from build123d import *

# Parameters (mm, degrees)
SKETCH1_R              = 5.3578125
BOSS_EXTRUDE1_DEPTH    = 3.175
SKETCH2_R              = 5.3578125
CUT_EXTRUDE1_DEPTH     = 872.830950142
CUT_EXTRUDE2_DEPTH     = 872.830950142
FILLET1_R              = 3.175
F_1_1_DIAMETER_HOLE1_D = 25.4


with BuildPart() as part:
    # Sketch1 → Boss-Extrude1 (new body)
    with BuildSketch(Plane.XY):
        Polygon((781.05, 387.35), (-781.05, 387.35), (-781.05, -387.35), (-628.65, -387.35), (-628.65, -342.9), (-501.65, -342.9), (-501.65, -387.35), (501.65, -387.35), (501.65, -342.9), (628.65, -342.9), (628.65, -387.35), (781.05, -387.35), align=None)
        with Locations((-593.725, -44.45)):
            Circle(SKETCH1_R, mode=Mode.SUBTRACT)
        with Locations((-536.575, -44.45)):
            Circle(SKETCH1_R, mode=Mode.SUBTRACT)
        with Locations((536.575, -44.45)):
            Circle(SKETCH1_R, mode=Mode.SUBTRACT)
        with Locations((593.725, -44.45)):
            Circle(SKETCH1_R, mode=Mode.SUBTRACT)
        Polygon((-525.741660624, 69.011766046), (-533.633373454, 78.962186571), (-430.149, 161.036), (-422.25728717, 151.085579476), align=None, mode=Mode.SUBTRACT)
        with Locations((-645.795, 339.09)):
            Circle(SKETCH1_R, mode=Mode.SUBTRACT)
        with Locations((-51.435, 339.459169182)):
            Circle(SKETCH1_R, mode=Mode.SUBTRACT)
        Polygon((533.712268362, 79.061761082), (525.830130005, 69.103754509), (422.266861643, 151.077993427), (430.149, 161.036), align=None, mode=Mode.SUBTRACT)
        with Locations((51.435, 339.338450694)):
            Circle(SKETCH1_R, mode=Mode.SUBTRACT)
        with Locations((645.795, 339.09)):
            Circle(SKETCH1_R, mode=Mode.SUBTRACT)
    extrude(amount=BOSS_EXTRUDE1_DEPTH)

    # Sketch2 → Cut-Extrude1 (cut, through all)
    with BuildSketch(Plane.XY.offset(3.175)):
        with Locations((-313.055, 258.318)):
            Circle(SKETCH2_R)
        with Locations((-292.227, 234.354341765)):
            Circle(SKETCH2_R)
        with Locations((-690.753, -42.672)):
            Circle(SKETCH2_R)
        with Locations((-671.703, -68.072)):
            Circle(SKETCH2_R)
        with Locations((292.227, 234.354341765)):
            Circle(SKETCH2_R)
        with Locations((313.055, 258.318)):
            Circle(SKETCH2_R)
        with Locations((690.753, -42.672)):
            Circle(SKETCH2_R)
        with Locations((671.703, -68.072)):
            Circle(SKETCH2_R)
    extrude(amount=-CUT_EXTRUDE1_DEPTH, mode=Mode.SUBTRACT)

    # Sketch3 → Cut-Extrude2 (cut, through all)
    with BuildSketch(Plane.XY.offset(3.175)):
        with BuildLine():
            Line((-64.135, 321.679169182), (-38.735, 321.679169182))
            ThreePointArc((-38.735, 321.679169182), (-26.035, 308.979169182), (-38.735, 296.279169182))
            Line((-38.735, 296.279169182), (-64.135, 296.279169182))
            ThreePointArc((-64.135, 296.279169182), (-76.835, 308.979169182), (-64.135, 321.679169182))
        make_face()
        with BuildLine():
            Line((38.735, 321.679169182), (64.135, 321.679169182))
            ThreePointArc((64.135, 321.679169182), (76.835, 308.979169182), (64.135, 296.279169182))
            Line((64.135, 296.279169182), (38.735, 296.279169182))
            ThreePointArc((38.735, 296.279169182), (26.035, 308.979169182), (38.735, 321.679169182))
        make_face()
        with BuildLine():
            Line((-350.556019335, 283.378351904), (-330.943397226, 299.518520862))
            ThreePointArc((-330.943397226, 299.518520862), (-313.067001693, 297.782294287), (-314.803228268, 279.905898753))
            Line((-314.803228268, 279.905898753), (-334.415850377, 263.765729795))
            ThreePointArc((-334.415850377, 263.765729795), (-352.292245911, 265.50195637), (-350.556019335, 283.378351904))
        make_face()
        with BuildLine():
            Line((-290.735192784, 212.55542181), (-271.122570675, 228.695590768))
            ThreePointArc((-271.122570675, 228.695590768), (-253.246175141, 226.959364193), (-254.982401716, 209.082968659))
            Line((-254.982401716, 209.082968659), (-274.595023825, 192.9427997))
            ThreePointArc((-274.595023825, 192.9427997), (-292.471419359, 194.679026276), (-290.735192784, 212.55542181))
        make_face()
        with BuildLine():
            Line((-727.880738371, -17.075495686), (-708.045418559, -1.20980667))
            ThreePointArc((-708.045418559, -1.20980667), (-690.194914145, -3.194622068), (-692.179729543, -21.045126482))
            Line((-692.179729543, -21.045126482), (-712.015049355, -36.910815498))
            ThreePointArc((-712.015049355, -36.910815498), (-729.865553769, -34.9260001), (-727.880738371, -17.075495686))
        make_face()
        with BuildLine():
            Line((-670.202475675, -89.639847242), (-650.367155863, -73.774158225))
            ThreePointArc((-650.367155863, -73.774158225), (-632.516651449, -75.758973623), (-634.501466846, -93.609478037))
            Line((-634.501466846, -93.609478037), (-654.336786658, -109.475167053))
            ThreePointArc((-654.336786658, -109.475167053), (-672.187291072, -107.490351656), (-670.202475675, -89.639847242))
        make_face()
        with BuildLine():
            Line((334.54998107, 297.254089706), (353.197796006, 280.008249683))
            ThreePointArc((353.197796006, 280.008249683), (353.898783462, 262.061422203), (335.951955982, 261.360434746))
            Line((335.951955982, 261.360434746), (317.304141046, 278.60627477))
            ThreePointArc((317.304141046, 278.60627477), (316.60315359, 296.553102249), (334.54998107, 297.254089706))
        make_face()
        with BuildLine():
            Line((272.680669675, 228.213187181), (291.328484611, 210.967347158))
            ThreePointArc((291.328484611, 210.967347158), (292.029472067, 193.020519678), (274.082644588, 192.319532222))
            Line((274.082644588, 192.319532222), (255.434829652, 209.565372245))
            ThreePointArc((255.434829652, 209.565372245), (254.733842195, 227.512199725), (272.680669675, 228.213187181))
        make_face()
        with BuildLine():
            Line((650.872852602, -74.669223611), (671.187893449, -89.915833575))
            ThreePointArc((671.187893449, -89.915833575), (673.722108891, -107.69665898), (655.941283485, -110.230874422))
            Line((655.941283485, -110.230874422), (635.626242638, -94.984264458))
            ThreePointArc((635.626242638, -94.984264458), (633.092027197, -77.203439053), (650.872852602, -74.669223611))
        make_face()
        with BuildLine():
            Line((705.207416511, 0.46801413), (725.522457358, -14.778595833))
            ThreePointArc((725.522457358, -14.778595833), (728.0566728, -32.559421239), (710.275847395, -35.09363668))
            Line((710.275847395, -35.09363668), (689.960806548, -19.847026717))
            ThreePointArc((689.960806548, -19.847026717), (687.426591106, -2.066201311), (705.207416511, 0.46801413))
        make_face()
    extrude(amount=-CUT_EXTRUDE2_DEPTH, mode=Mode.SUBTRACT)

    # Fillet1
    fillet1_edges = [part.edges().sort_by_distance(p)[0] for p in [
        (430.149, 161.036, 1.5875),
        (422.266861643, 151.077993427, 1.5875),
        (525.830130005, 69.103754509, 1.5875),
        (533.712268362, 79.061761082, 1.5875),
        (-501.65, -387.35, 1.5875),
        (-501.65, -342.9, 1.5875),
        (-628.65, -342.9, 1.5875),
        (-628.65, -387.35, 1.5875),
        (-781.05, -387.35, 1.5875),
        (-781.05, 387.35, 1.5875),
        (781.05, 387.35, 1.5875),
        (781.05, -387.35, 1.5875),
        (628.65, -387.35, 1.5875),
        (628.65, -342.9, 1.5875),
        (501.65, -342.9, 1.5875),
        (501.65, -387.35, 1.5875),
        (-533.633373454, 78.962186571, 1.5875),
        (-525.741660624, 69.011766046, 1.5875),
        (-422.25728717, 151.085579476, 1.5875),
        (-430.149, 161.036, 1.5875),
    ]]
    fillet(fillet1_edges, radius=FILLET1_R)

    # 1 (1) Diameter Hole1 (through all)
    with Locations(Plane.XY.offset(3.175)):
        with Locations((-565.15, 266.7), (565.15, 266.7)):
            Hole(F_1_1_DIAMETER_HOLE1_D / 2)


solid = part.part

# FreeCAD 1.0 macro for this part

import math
import FreeCAD as App
import Part
import Sketcher

V = App.Vector
Q = App.Units.Quantity


def edges_at(feature, points):
    """Names of the edges that pass closest to the given points."""
    edges = feature.Shape.Edges
    near = lambda p: min(range(len(edges)), key=lambda i: edges[i].distToShape(Part.Vertex(*p))[0])
    return sorted({f"Edge{near(p) + 1}" for p in points})

doc = App.newDocument("Part")
body = doc.addObject("PartDesign::Body", "Body")

sketch1 = body.newObject("Sketcher::SketchObject", "Sketch")
sketch1.AttachmentSupport = (doc.getObject("XY_Plane"), [""])
sketch1.MapMode = "FlatFace"
sketch1.addGeometry(Part.LineSegment(V(781, 387, 0), V(-781, 387, 0)), False)
sketch1.addGeometry(Part.LineSegment(V(-781, 387, 0), V(-781, -387, 0)), False)
sketch1.addGeometry(Part.LineSegment(V(-781, -387, 0), V(-629, -387, 0)), False)
sketch1.addGeometry(Part.LineSegment(V(-629, -387, 0), V(-629, -343, 0)), False)
sketch1.addGeometry(Part.LineSegment(V(-629, -343, 0), V(-502, -343, 0)), False)
sketch1.addGeometry(Part.LineSegment(V(-502, -343, 0), V(-502, -387, 0)), False)
sketch1.addGeometry(Part.LineSegment(V(-502, -387, 0), V(502, -387, 0)), False)
sketch1.addGeometry(Part.LineSegment(V(502, -387, 0), V(502, -343, 0)), False)
sketch1.addGeometry(Part.LineSegment(V(502, -343, 0), V(629, -343, 0)), False)
sketch1.addGeometry(Part.LineSegment(V(629, -343, 0), V(629, -387, 0)), False)
sketch1.addGeometry(Part.LineSegment(V(629, -387, 0), V(781, -387, 0)), False)
sketch1.addGeometry(Part.LineSegment(V(781, -387, 0), V(781, 387, 0)), False)
sketch1.addGeometry(Part.Circle(V(-594, -44, 0), V(0, 0, 1), 5), False)
sketch1.addGeometry(Part.Circle(V(-537, -44, 0), V(0, 0, 1), 5), False)
sketch1.addGeometry(Part.LineSegment(V(-422, 151, 0), V(-526, 69, 0)), False)
sketch1.addGeometry(Part.LineSegment(V(-526, 69, 0), V(-534, 79, 0)), False)
sketch1.addGeometry(Part.LineSegment(V(-534, 79, 0), V(-430, 161, 0)), False)
sketch1.addGeometry(Part.LineSegment(V(-430, 161, 0), V(-422, 151, 0)), False)
sketch1.addGeometry(Part.Circle(V(537, -44, 0), V(0, 0, 1), 5), False)
sketch1.addGeometry(Part.Circle(V(594, -44, 0), V(0, 0, 1), 5), False)
sketch1.addGeometry(Part.LineSegment(V(430, 161, 0), V(534, 79, 0)), False)
sketch1.addGeometry(Part.LineSegment(V(534, 79, 0), V(526, 69, 0)), False)
sketch1.addGeometry(Part.LineSegment(V(526, 69, 0), V(422, 151, 0)), False)
sketch1.addGeometry(Part.LineSegment(V(422, 151, 0), V(430, 161, 0)), False)
sketch1.addGeometry(Part.Circle(V(-646, 339, 0), V(0, 0, 1), 5), False)
sketch1.addGeometry(Part.Circle(V(-51, 339, 0), V(0, 0, 1), 5), False)
sketch1.addGeometry(Part.Circle(V(51, 339, 0), V(0, 0, 1), 5), False)
sketch1.addGeometry(Part.Circle(V(646, 339, 0), V(0, 0, 1), 5), False)
sketch1.addConstraint(Sketcher.Constraint("Coincident", 0, 2, 1, 1))
sketch1.addConstraint(Sketcher.Constraint("Coincident", 1, 2, 2, 1))
sketch1.addConstraint(Sketcher.Constraint("Coincident", 2, 2, 3, 1))
sketch1.addConstraint(Sketcher.Constraint("Coincident", 3, 2, 4, 1))
sketch1.addConstraint(Sketcher.Constraint("Coincident", 4, 2, 5, 1))
sketch1.addConstraint(Sketcher.Constraint("Coincident", 5, 2, 6, 1))
sketch1.addConstraint(Sketcher.Constraint("Coincident", 6, 2, 7, 1))
sketch1.addConstraint(Sketcher.Constraint("Coincident", 7, 2, 8, 1))
sketch1.addConstraint(Sketcher.Constraint("Coincident", 8, 2, 9, 1))
sketch1.addConstraint(Sketcher.Constraint("Coincident", 9, 2, 10, 1))
sketch1.addConstraint(Sketcher.Constraint("Coincident", 10, 2, 11, 1))
sketch1.addConstraint(Sketcher.Constraint("Coincident", 11, 2, 0, 1))
sketch1.addConstraint(Sketcher.Constraint("Coincident", 14, 2, 15, 1))
sketch1.addConstraint(Sketcher.Constraint("Coincident", 15, 2, 16, 1))
sketch1.addConstraint(Sketcher.Constraint("Coincident", 16, 2, 17, 1))
sketch1.addConstraint(Sketcher.Constraint("Coincident", 17, 2, 14, 1))
sketch1.addConstraint(Sketcher.Constraint("Coincident", 20, 2, 21, 1))
sketch1.addConstraint(Sketcher.Constraint("Coincident", 21, 2, 22, 1))
sketch1.addConstraint(Sketcher.Constraint("Coincident", 22, 2, 23, 1))
sketch1.addConstraint(Sketcher.Constraint("Coincident", 23, 2, 20, 1))
sketch1.addConstraint(Sketcher.Constraint("Horizontal", 0))
sketch1.addConstraint(Sketcher.Constraint("Vertical", 1))
sketch1.addConstraint(Sketcher.Constraint("Horizontal", 2))
sketch1.addConstraint(Sketcher.Constraint("Vertical", 3))
sketch1.addConstraint(Sketcher.Constraint("Horizontal", 4))
sketch1.addConstraint(Sketcher.Constraint("Vertical", 5))
sketch1.addConstraint(Sketcher.Constraint("Horizontal", 6))
sketch1.addConstraint(Sketcher.Constraint("Vertical", 7))
sketch1.addConstraint(Sketcher.Constraint("Horizontal", 8))
sketch1.addConstraint(Sketcher.Constraint("Vertical", 9))
sketch1.addConstraint(Sketcher.Constraint("Horizontal", 10))
sketch1.addConstraint(Sketcher.Constraint("Vertical", 11))
sketch1.addConstraint(Sketcher.Constraint("Equal", 12, 13))
sketch1.addConstraint(Sketcher.Constraint("Equal", 13, 18))
sketch1.addConstraint(Sketcher.Constraint("Equal", 18, 19))
sketch1.addConstraint(Sketcher.Constraint("Equal", 19, 24))
sketch1.addConstraint(Sketcher.Constraint("Equal", 24, 25))
sketch1.addConstraint(Sketcher.Constraint("Equal", 25, 26))
sketch1.addConstraint(Sketcher.Constraint("Equal", 26, 27))
sketch1.addConstraint(Sketcher.Constraint("Symmetric", 0, 2, 10, 2, -1, 1))
sketch1.addConstraint(Sketcher.Constraint("Symmetric", 13, 3, 18, 3, -2))
sketch1.addConstraint(Sketcher.Constraint("Symmetric", 12, 3, 19, 3, -2))
sketch1.addConstraint(Sketcher.Constraint("Symmetric", 24, 3, 27, 3, -2))
sketch1.addConstraint(Sketcher.Constraint("Symmetric", 4, 2, 7, 2, -2))
sketch1.addConstraint(Sketcher.Constraint("Symmetric", 2, 2, 9, 2, -2))
sketch1.addConstraint(Sketcher.Constraint("Symmetric", 16, 2, 23, 2, -2))
sketch1.addConstraint(Sketcher.Constraint("Perpendicular", 14, 15))
sketch1.addConstraint(Sketcher.Constraint("Perpendicular", 15, 16))
sketch1.addConstraint(Sketcher.Constraint("Perpendicular", 16, 17))
sketch1.addConstraint(Sketcher.Constraint("Perpendicular", 20, 21))
sketch1.addConstraint(Sketcher.Constraint("Perpendicular", 21, 22))
sketch1.addConstraint(Sketcher.Constraint("Perpendicular", 22, 23))
sketch1.addConstraint(Sketcher.Constraint("Horizontal", 12, 3, 13, 3))
sketch1.addConstraint(Sketcher.Constraint("Horizontal", 2, 2, 5, 2))
sketch1.addConstraint(Sketcher.Constraint("Equal", 16, 20))
sketch1.addConstraint(Sketcher.Constraint("Equal", 17, 21))
sketch1.addConstraint(Sketcher.Constraint("DistanceX", 2, 1, 2, 2, Q("6 in")))
sketch1.addConstraint(Sketcher.Constraint("DistanceX", 4, 1, 4, 2, Q("5 in")))
sketch1.addConstraint(Sketcher.Constraint("Diameter", 12, Q("0.421875 in")))
sketch1.addConstraint(Sketcher.Constraint("DistanceX", 0, 2, 0, 1, Q("61.5 in")))
sketch1.addConstraint(Sketcher.Constraint("DistanceY", 1, 2, 1, 1, Q("30.5 in")))
sketch1.addConstraint(Sketcher.Constraint("DistanceY", 12, 3, 0, 2, Q("17 in")))
sketch1.addConstraint(Sketcher.Constraint("Distance", 14, Q("5.2 in")))
sketch1.addConstraint(Sketcher.Constraint("Distance", 15, Q("0.5 in")))
sketch1.addConstraint(Sketcher.Constraint("DistanceY", 3, 1, 3, 2, Q("1.75 in")))
sketch1.addConstraint(Sketcher.Constraint("DistanceX", 12, 3, 18, 3, Q("44.5 in")))
sketch1.addConstraint(Sketcher.Constraint("DistanceY", 12, 3, 24, 3, Q("15.1 in")))
sketch1.addConstraint(Sketcher.Constraint("DistanceX", 24, 3, 13, 3, Q("4.3 in")))
sketch1.addConstraint(Sketcher.Constraint("DistanceX", 24, 3, 25, 3, Q("23.4 in")))
sketch1.addConstraint(Sketcher.Constraint("DistanceX", 26, 3, 18, 3, Q("19.1 in")))
sketch1.addConstraint(Sketcher.Constraint("DistanceY", -1, 1, 16, 2, Q("6.34 in")))
sketch1.addConstraint(Sketcher.Constraint("DistanceX", 12, 3, 13, 3, Q("2.25 in")))
sketch1.addConstraint(Sketcher.Constraint("DistanceX", 13, 3, 16, 2, Q("4.19 in")))
sketch1.addConstraint(Sketcher.Constraint("DistanceY", -1, 1, 25, 3, 339.459169))
sketch1.addConstraint(Sketcher.Constraint("DistanceY", -1, 1, 26, 3, 339.338451))
sketch1.addConstraint(Sketcher.Constraint("DistanceX", 14, 2, -1, 1, 525.741661))
sketch1.addConstraint(Sketcher.Constraint("DistanceX", -1, 1, 20, 2, 533.712268))
pad1 = body.newObject("PartDesign::Pad", "Pad")
pad1.Profile = sketch1
pad1.Length = Q("0.125 in")

sketch2 = body.newObject("Sketcher::SketchObject", "Sketch001")
sketch2.AttachmentSupport = (doc.getObject("XY_Plane"), [""])
sketch2.MapMode = "FlatFace"
sketch2.AttachmentOffset = App.Placement(V(0, 0, 0.125 * 25.4), App.Rotation())
sketch2.addGeometry(Part.Circle(V(-313, 258, 0), V(0, 0, 1), 5), False)
sketch2.addGeometry(Part.Circle(V(-292, 234, 0), V(0, 0, 1), 5), False)
sketch2.addGeometry(Part.Circle(V(-691, -43, 0), V(0, 0, 1), 5), False)
sketch2.addGeometry(Part.Circle(V(-672, -68, 0), V(0, 0, 1), 5), False)
sketch2.addGeometry(Part.Circle(V(292, 234, 0), V(0, 0, 1), 5), False)
sketch2.addGeometry(Part.Circle(V(313, 258, 0), V(0, 0, 1), 5), False)
sketch2.addGeometry(Part.Circle(V(691, -43, 0), V(0, 0, 1), 5), False)
sketch2.addGeometry(Part.Circle(V(672, -68, 0), V(0, 0, 1), 5), False)
sketch2.addConstraint(Sketcher.Constraint("Equal", 0, 1))
sketch2.addConstraint(Sketcher.Constraint("Equal", 1, 2))
sketch2.addConstraint(Sketcher.Constraint("Equal", 2, 3))
sketch2.addConstraint(Sketcher.Constraint("Equal", 3, 4))
sketch2.addConstraint(Sketcher.Constraint("Equal", 4, 5))
sketch2.addConstraint(Sketcher.Constraint("Equal", 5, 6))
sketch2.addConstraint(Sketcher.Constraint("Equal", 6, 7))
sketch2.addConstraint(Sketcher.Constraint("Symmetric", 1, 3, 4, 3, -2))
sketch2.addConstraint(Sketcher.Constraint("Symmetric", 0, 3, 5, 3, -2))
sketch2.addConstraint(Sketcher.Constraint("Symmetric", 2, 3, 6, 3, -2))
sketch2.addConstraint(Sketcher.Constraint("Symmetric", 3, 3, 7, 3, -2))
sketch2.addConstraint(Sketcher.Constraint("Diameter", 0, Q("0.421875 in")))
sketch2.addConstraint(Sketcher.Constraint("DistanceY", 3, 3, 2, 3, Q("1 in")))
sketch2.addConstraint(Sketcher.Constraint("DistanceX", 2, 3, 4, 3, Q("38.7 in")))
sketch2.addConstraint(Sketcher.Constraint("DistanceY", -1, 1, 0, 3, Q("10.17 in")))
sketch2.addConstraint(Sketcher.Constraint("DistanceY", 2, 3, -1, 1, Q("1.68 in")))
sketch2.addConstraint(Sketcher.Constraint("DistanceX", 0, 3, 1, 3, Q("0.82 in")))
sketch2.addConstraint(Sketcher.Constraint("DistanceX", 2, 3, 0, 3, Q("14.87 in")))
sketch2.addConstraint(Sketcher.Constraint("DistanceX", 2, 3, 3, 3, Q("0.75 in")))
sketch2.addConstraint(Sketcher.Constraint("DistanceY", -1, 1, 1, 3, 234.354342))
pocket1 = body.newObject("PartDesign::Pocket", "Pocket")
pocket1.Profile = sketch2
pocket1.Type = "ThroughAll"

sketch3 = body.newObject("Sketcher::SketchObject", "Sketch002")
sketch3.AttachmentSupport = (doc.getObject("XY_Plane"), [""])
sketch3.MapMode = "FlatFace"
sketch3.AttachmentOffset = App.Placement(V(0, 0, 0.125 * 25.4), App.Rotation())
sketch3.addGeometry(Part.LineSegment(V(-39, 322, 0), V(-64, 322, 0)), False)
sketch3.addGeometry(Part.ArcOfCircle(Part.Circle(V(-64, 309, 0), V(0, 0, 1), 13), math.radians(90), math.radians(270)), False)
sketch3.addGeometry(Part.LineSegment(V(-64, 296, 0), V(-39, 296, 0)), False)
sketch3.addGeometry(Part.ArcOfCircle(Part.Circle(V(-39, 309, 0), V(0, 0, 1), 13), math.radians(-90), math.radians(90)), False)
sketch3.addGeometry(Part.LineSegment(V(64, 322, 0), V(39, 322, 0)), False)
sketch3.addGeometry(Part.ArcOfCircle(Part.Circle(V(39, 309, 0), V(0, 0, 1), 13), math.radians(90), math.radians(270)), False)
sketch3.addGeometry(Part.LineSegment(V(39, 296, 0), V(64, 296, 0)), False)
sketch3.addGeometry(Part.ArcOfCircle(Part.Circle(V(64, 309, 0), V(0, 0, 1), 13), math.radians(-90), math.radians(90)), False)
sketch3.addGeometry(Part.LineSegment(V(-331, 300, 0), V(-351, 283, 0)), False)
sketch3.addGeometry(Part.ArcOfCircle(Part.Circle(V(-342, 274, 0), V(0, 0, 1), 13), math.radians(129), math.radians(309)), False)
sketch3.addGeometry(Part.LineSegment(V(-334, 264, 0), V(-315, 280, 0)), False)
sketch3.addGeometry(Part.ArcOfCircle(Part.Circle(V(-323, 290, 0), V(0, 0, 1), 13), math.radians(-51), math.radians(129)), False)
sketch3.addGeometry(Part.LineSegment(V(-271, 229, 0), V(-291, 213, 0)), False)
sketch3.addGeometry(Part.ArcOfCircle(Part.Circle(V(-283, 203, 0), V(0, 0, 1), 13), math.radians(129), math.radians(309)), False)
sketch3.addGeometry(Part.LineSegment(V(-275, 193, 0), V(-255, 209, 0)), False)
sketch3.addGeometry(Part.ArcOfCircle(Part.Circle(V(-263, 219, 0), V(0, 0, 1), 13), math.radians(-51), math.radians(129)), False)
sketch3.addGeometry(Part.LineSegment(V(-708, -1, 0), V(-728, -17, 0)), False)
sketch3.addGeometry(Part.ArcOfCircle(Part.Circle(V(-720, -27, 0), V(0, 0, 1), 13), math.radians(129), math.radians(309)), False)
sketch3.addGeometry(Part.LineSegment(V(-712, -37, 0), V(-692, -21, 0)), False)
sketch3.addGeometry(Part.ArcOfCircle(Part.Circle(V(-700, -11, 0), V(0, 0, 1), 13), math.radians(-51), math.radians(129)), False)
sketch3.addGeometry(Part.LineSegment(V(-650, -74, 0), V(-670, -90, 0)), False)
sketch3.addGeometry(Part.ArcOfCircle(Part.Circle(V(-662, -100, 0), V(0, 0, 1), 13), math.radians(129), math.radians(309)), False)
sketch3.addGeometry(Part.LineSegment(V(-654, -109, 0), V(-635, -94, 0)), False)
sketch3.addGeometry(Part.ArcOfCircle(Part.Circle(V(-642, -84, 0), V(0, 0, 1), 13), math.radians(-51), math.radians(129)), False)
sketch3.addGeometry(Part.LineSegment(V(353, 280, 0), V(335, 297, 0)), False)
sketch3.addGeometry(Part.ArcOfCircle(Part.Circle(V(326, 288, 0), V(0, 0, 1), 13), math.radians(47), math.radians(227)), False)
sketch3.addGeometry(Part.LineSegment(V(317, 279, 0), V(336, 261, 0)), False)
sketch3.addGeometry(Part.ArcOfCircle(Part.Circle(V(345, 271, 0), V(0, 0, 1), 13), math.radians(-133), math.radians(47)), False)
sketch3.addGeometry(Part.LineSegment(V(291, 211, 0), V(273, 228, 0)), False)
sketch3.addGeometry(Part.ArcOfCircle(Part.Circle(V(264, 219, 0), V(0, 0, 1), 13), math.radians(47), math.radians(227)), False)
sketch3.addGeometry(Part.LineSegment(V(255, 210, 0), V(274, 192, 0)), False)
sketch3.addGeometry(Part.ArcOfCircle(Part.Circle(V(283, 202, 0), V(0, 0, 1), 13), math.radians(-133), math.radians(47)), False)
sketch3.addGeometry(Part.LineSegment(V(671, -90, 0), V(651, -75, 0)), False)
sketch3.addGeometry(Part.ArcOfCircle(Part.Circle(V(643, -85, 0), V(0, 0, 1), 13), math.radians(53), math.radians(233)), False)
sketch3.addGeometry(Part.LineSegment(V(636, -95, 0), V(656, -110, 0)), False)
sketch3.addGeometry(Part.ArcOfCircle(Part.Circle(V(664, -100, 0), V(0, 0, 1), 13), math.radians(-127), math.radians(53)), False)
sketch3.addGeometry(Part.LineSegment(V(726, -15, 0), V(705, 0, 0)), False)
sketch3.addGeometry(Part.ArcOfCircle(Part.Circle(V(698, -10, 0), V(0, 0, 1), 13), math.radians(53), math.radians(233)), False)
sketch3.addGeometry(Part.LineSegment(V(690, -20, 0), V(710, -35, 0)), False)
sketch3.addGeometry(Part.ArcOfCircle(Part.Circle(V(718, -25, 0), V(0, 0, 1), 13), math.radians(-127), math.radians(53)), False)
sketch3.addConstraint(Sketcher.Constraint("Tangent", 0, 2, 1, 1))
sketch3.addConstraint(Sketcher.Constraint("Tangent", 1, 2, 2, 1))
sketch3.addConstraint(Sketcher.Constraint("Tangent", 2, 2, 3, 1))
sketch3.addConstraint(Sketcher.Constraint("Tangent", 3, 2, 0, 1))
sketch3.addConstraint(Sketcher.Constraint("Tangent", 4, 2, 5, 1))
sketch3.addConstraint(Sketcher.Constraint("Tangent", 5, 2, 6, 1))
sketch3.addConstraint(Sketcher.Constraint("Tangent", 6, 2, 7, 1))
sketch3.addConstraint(Sketcher.Constraint("Tangent", 7, 2, 4, 1))
sketch3.addConstraint(Sketcher.Constraint("Tangent", 8, 2, 9, 1))
sketch3.addConstraint(Sketcher.Constraint("Tangent", 9, 2, 10, 1))
sketch3.addConstraint(Sketcher.Constraint("Tangent", 10, 2, 11, 1))
sketch3.addConstraint(Sketcher.Constraint("Tangent", 11, 2, 8, 1))
sketch3.addConstraint(Sketcher.Constraint("Tangent", 12, 2, 13, 1))
sketch3.addConstraint(Sketcher.Constraint("Tangent", 13, 2, 14, 1))
sketch3.addConstraint(Sketcher.Constraint("Tangent", 14, 2, 15, 1))
sketch3.addConstraint(Sketcher.Constraint("Tangent", 15, 2, 12, 1))
sketch3.addConstraint(Sketcher.Constraint("Tangent", 16, 2, 17, 1))
sketch3.addConstraint(Sketcher.Constraint("Tangent", 17, 2, 18, 1))
sketch3.addConstraint(Sketcher.Constraint("Tangent", 18, 2, 19, 1))
sketch3.addConstraint(Sketcher.Constraint("Tangent", 19, 2, 16, 1))
sketch3.addConstraint(Sketcher.Constraint("Tangent", 20, 2, 21, 1))
sketch3.addConstraint(Sketcher.Constraint("Tangent", 21, 2, 22, 1))
sketch3.addConstraint(Sketcher.Constraint("Tangent", 22, 2, 23, 1))
sketch3.addConstraint(Sketcher.Constraint("Tangent", 23, 2, 20, 1))
sketch3.addConstraint(Sketcher.Constraint("Tangent", 24, 2, 25, 1))
sketch3.addConstraint(Sketcher.Constraint("Tangent", 25, 2, 26, 1))
sketch3.addConstraint(Sketcher.Constraint("Tangent", 26, 2, 27, 1))
sketch3.addConstraint(Sketcher.Constraint("Tangent", 27, 2, 24, 1))
sketch3.addConstraint(Sketcher.Constraint("Tangent", 28, 2, 29, 1))
sketch3.addConstraint(Sketcher.Constraint("Tangent", 29, 2, 30, 1))
sketch3.addConstraint(Sketcher.Constraint("Tangent", 30, 2, 31, 1))
sketch3.addConstraint(Sketcher.Constraint("Tangent", 31, 2, 28, 1))
sketch3.addConstraint(Sketcher.Constraint("Tangent", 32, 2, 33, 1))
sketch3.addConstraint(Sketcher.Constraint("Tangent", 33, 2, 34, 1))
sketch3.addConstraint(Sketcher.Constraint("Tangent", 34, 2, 35, 1))
sketch3.addConstraint(Sketcher.Constraint("Tangent", 35, 2, 32, 1))
sketch3.addConstraint(Sketcher.Constraint("Tangent", 36, 2, 37, 1))
sketch3.addConstraint(Sketcher.Constraint("Tangent", 37, 2, 38, 1))
sketch3.addConstraint(Sketcher.Constraint("Tangent", 38, 2, 39, 1))
sketch3.addConstraint(Sketcher.Constraint("Tangent", 39, 2, 36, 1))
sketch3.addConstraint(Sketcher.Constraint("Horizontal", 0))
sketch3.addConstraint(Sketcher.Constraint("Horizontal", 2))
sketch3.addConstraint(Sketcher.Constraint("Horizontal", 4))
sketch3.addConstraint(Sketcher.Constraint("Horizontal", 6))
sketch3.addConstraint(Sketcher.Constraint("Equal", 3, 5))
sketch3.addConstraint(Sketcher.Constraint("Equal", 7, 9))
sketch3.addConstraint(Sketcher.Constraint("Equal", 9, 11))
sketch3.addConstraint(Sketcher.Constraint("Equal", 11, 13))
sketch3.addConstraint(Sketcher.Constraint("Equal", 13, 15))
sketch3.addConstraint(Sketcher.Constraint("Equal", 15, 17))
sketch3.addConstraint(Sketcher.Constraint("Equal", 17, 19))
sketch3.addConstraint(Sketcher.Constraint("Equal", 19, 21))
sketch3.addConstraint(Sketcher.Constraint("Equal", 21, 23))
sketch3.addConstraint(Sketcher.Constraint("Equal", 23, 25))
sketch3.addConstraint(Sketcher.Constraint("Equal", 25, 27))
sketch3.addConstraint(Sketcher.Constraint("Equal", 27, 29))
sketch3.addConstraint(Sketcher.Constraint("Equal", 29, 31))
sketch3.addConstraint(Sketcher.Constraint("Equal", 31, 33))
sketch3.addConstraint(Sketcher.Constraint("Equal", 33, 35))
sketch3.addConstraint(Sketcher.Constraint("Equal", 35, 37))
sketch3.addConstraint(Sketcher.Constraint("Equal", 37, 39))
sketch3.addConstraint(Sketcher.Constraint("Symmetric", 3, 3, 5, 3, -2))
sketch3.addConstraint(Sketcher.Constraint("Parallel", 10, 12))
sketch3.addConstraint(Sketcher.Constraint("Parallel", 18, 20))
sketch3.addConstraint(Sketcher.Constraint("Parallel", 26, 28))
sketch3.addConstraint(Sketcher.Constraint("Parallel", 34, 36))
sketch3.addConstraint(Sketcher.Constraint("Horizontal", 15, 3, 29, 3))
sketch3.addConstraint(Sketcher.Constraint("Equal", 2, 4))
sketch3.addConstraint(Sketcher.Constraint("Equal", 10, 12))
sketch3.addConstraint(Sketcher.Constraint("Equal", 14, 16))
sketch3.addConstraint(Sketcher.Constraint("Equal", 18, 20))
sketch3.addConstraint(Sketcher.Constraint("Equal", 22, 24))
sketch3.addConstraint(Sketcher.Constraint("Equal", 26, 28))
sketch3.addConstraint(Sketcher.Constraint("Equal", 30, 32))
sketch3.addConstraint(Sketcher.Constraint("Equal", 34, 36))
sketch3.addConstraint(Sketcher.Constraint("Radius", 1, Q("0.5 in")))
sketch3.addConstraint(Sketcher.Constraint("DistanceX", 0, 2, 0, 1, Q("1 in")))
sketch3.addConstraint(Sketcher.Constraint("Distance", 8, Q("1 in")))
sketch3.addConstraint(Sketcher.Constraint("DistanceX", 3, 3, 5, 3, Q("3.05 in")))
sketch3.addConstraint(Sketcher.Constraint("DistanceX", 11, 3, 13, 3, Q("1.5830002 in")))
sketch3.addConstraint(Sketcher.Constraint("DistanceY", -1, 1, 10, 2, 279.905899))
sketch3.addConstraint(Sketcher.Constraint("DistanceY", -1, 1, 13, 2, 192.9428))
sketch3.addConstraint(Sketcher.Constraint("DistanceX", 14, 2, -1, 1, 254.982402))
sketch3.addConstraint(Sketcher.Constraint("DistanceX", 32, 2, 39, 3, 67.0263))
sketch3.addConstraint(Sketcher.Constraint("DistanceY", -1, 1, 1, 3, 308.979169))
sketch3.addConstraint(Sketcher.Constraint("DistanceY", -1, 1, 9, 3, 273.572041))
sketch3.addConstraint(Sketcher.Constraint("DistanceX", 21, 3, -1, 1, 662.269631))
sketch3.addConstraint(Sketcher.Constraint("DistanceX", 23, 3, -1, 1, 642.434311))
sketch3.addConstraint(Sketcher.Constraint("DistanceY", 23, 3, -1, 1, 83.691818))
sketch3.addConstraint(Sketcher.Constraint("DistanceX", -1, 1, 25, 3, 325.927061))
sketch3.addConstraint(Sketcher.Constraint("DistanceX", -1, 1, 29, 3, 264.05775))
sketch3.addConstraint(Sketcher.Constraint("DistanceY", -1, 1, 31, 3, 201.64344))
sketch3.addConstraint(Sketcher.Constraint("DistanceX", -1, 1, 35, 3, 663.564588))
sketch3.addConstraint(Sketcher.Constraint("DistanceX", -1, 1, 37, 3, 697.584112))
sketch3.addConstraint(Sketcher.Constraint("DistanceX", 16, 2, -1, 1, 727.880738))
sketch3.addConstraint(Sketcher.Constraint("DistanceY", -1, 1, 24, 2, 297.25409))
sketch3.addConstraint(Sketcher.Constraint("DistanceY", 21, 3, 17, 3, 72.564352))
sketch3.addConstraint(Sketcher.Constraint("DistanceY", 37, 3, 27, 3, 280.373849))
sketch3.addConstraint(Sketcher.Constraint("DistanceY", 32, 2, 31, 2, 285.636571))
pocket2 = body.newObject("PartDesign::Pocket", "Pocket001")
pocket2.Profile = sketch3
pocket2.Type = "ThroughAll"
doc.recompute()

fillet = body.newObject("PartDesign::Fillet", "Fillet")
fillet.Base = (pocket2, edges_at(pocket2, [
    (430.149, 161.036, 1.587),
    (422.267, 151.078, 1.587),
    (525.83, 69.104, 1.587),
    (533.712, 79.062, 1.587),
    (-501.65, -387.35, 1.587),
    (-501.65, -342.9, 1.587),
    (-628.65, -342.9, 1.587),
    (-628.65, -387.35, 1.587),
    (-781.05, -387.35, 1.587),
    (-781.05, 387.35, 1.587),
    (781.05, 387.35, 1.587),
    (781.05, -387.35, 1.587),
    (628.65, -387.35, 1.587),
    (628.65, -342.9, 1.587),
    (501.65, -342.9, 1.587),
    (501.65, -387.35, 1.587),
    (-533.633, 78.962, 1.587),
    (-525.742, 69.012, 1.587),
    (-422.257, 151.086, 1.587),
    (-430.149, 161.036, 1.587),
]))
fillet.Radius = Q("0.125 in")

sketch4 = body.newObject("Sketcher::SketchObject", "Sketch003")
sketch4.AttachmentSupport = (doc.getObject("XY_Plane"), [""])
sketch4.MapMode = "FlatFace"
sketch4.AttachmentOffset = App.Placement(V(0, 0, 0.125 * 25.4), App.Rotation())
sketch4.addGeometry(Part.Circle(V(-565, 267, 0), V(0, 0, 1), 13), False)
sketch4.addGeometry(Part.Circle(V(565, 267, 0), V(0, 0, 1), 13), False)
sketch4.addConstraint(Sketcher.Constraint("Equal", 0, 1))
sketch4.addConstraint(Sketcher.Constraint("Symmetric", 0, 3, 1, 3, -2))
sketch4.addConstraint(Sketcher.Constraint("Diameter", 0, Q("1 in")))
sketch4.addConstraint(Sketcher.Constraint("DistanceY", -1, 1, 0, 3, Q("10.5 in")))
sketch4.addConstraint(Sketcher.Constraint("DistanceX", 0, 3, 1, 3, Q("44.5 in")))
doc.recompute()
hole = body.newObject("PartDesign::Hole", "Hole")
hole.Profile = sketch4
hole.ThreadType = "None"
hole.Diameter = Q("1 in")
hole.DepthType = "ThroughAll"

doc.recompute()
